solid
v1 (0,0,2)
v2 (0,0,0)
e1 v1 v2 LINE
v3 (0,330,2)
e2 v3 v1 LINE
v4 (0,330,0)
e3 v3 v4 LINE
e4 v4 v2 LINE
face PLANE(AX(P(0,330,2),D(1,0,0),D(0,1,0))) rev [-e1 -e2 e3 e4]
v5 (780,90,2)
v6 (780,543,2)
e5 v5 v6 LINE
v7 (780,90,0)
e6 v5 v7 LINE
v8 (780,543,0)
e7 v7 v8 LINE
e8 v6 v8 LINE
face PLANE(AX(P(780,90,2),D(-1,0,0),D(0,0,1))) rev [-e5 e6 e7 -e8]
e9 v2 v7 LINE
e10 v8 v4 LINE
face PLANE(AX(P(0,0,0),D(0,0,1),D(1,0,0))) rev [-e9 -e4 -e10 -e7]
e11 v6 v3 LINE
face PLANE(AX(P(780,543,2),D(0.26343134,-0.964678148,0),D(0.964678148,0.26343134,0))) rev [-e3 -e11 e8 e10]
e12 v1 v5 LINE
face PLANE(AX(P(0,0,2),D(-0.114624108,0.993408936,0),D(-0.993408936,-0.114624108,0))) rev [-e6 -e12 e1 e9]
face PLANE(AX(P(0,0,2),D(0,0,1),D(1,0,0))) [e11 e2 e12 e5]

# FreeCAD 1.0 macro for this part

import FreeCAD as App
import Part
import Sketcher

doc = App.newDocument("Part")
params = doc.addObject("Spreadsheet::Sheet", "Params")
for row, (alias, value) in enumerate([
    ("sketch1_height", "330 mm"),
    ("sketch1_height2", "453 mm"),
    ("pad1_length", "2 mm"),
], start=1):
    params.set(f"A{row}", alias)
    params.set(f"B{row}", "=" + value)
    params.setAlias(f"B{row}", alias)

body = doc.addObject("PartDesign::Body", "Body")

# Sketch on XY plane
sketch1 = body.newObject("Sketcher::SketchObject", "Sketch")
sketch1.AttachmentSupport = (doc.getObject("XY_Plane"), [""])
sketch1.MapMode = "FlatFace"
sketch1.addGeometry(Part.LineSegment(App.Vector(0, 330, 0), App.Vector(0, 0, 0)), False)
sketch1.addGeometry(Part.LineSegment(App.Vector(0, 0, 0), App.Vector(780, 90, 0)), False)
sketch1.addGeometry(Part.LineSegment(App.Vector(780, 90, 0), App.Vector(780, 543, 0)), False)
sketch1.addGeometry(Part.LineSegment(App.Vector(780, 543, 0), App.Vector(0, 330, 0)), False)
sketch1.addConstraint(Sketcher.Constraint("Coincident", 0, 2, 1, 1))
sketch1.addConstraint(Sketcher.Constraint("Coincident", 1, 2, 2, 1))
sketch1.addConstraint(Sketcher.Constraint("Coincident", 2, 2, 3, 1))
sketch1.addConstraint(Sketcher.Constraint("Coincident", 3, 2, 0, 1))
sketch1.addConstraint(Sketcher.Constraint("Vertical", 0))
sketch1.addConstraint(Sketcher.Constraint("Vertical", 2))
sketch1.addConstraint(Sketcher.Constraint("Coincident", 0, 2, -1, 1))
sketch1.addConstraint(Sketcher.Constraint("DistanceY", 0, 2, 0, 1, 330.0))
sketch1.addConstraint(Sketcher.Constraint("DistanceY", 2, 1, 2, 2, 453.0))
sketch1.addConstraint(Sketcher.Constraint("DistanceX", -1, 1, 1, 2, 780.0))
sketch1.addConstraint(Sketcher.Constraint("DistanceY", -1, 1, 1, 2, 90.0))
sketch1.setExpression("Constraints[7]", "Params.sketch1_height")
sketch1.setExpression("Constraints[8]", "Params.sketch1_height2")
pad1 = body.newObject("PartDesign::Pad", "Pad")
pad1.Profile = sketch1
pad1.setExpression("Length", "Params.pad1_length")

doc.recompute()
